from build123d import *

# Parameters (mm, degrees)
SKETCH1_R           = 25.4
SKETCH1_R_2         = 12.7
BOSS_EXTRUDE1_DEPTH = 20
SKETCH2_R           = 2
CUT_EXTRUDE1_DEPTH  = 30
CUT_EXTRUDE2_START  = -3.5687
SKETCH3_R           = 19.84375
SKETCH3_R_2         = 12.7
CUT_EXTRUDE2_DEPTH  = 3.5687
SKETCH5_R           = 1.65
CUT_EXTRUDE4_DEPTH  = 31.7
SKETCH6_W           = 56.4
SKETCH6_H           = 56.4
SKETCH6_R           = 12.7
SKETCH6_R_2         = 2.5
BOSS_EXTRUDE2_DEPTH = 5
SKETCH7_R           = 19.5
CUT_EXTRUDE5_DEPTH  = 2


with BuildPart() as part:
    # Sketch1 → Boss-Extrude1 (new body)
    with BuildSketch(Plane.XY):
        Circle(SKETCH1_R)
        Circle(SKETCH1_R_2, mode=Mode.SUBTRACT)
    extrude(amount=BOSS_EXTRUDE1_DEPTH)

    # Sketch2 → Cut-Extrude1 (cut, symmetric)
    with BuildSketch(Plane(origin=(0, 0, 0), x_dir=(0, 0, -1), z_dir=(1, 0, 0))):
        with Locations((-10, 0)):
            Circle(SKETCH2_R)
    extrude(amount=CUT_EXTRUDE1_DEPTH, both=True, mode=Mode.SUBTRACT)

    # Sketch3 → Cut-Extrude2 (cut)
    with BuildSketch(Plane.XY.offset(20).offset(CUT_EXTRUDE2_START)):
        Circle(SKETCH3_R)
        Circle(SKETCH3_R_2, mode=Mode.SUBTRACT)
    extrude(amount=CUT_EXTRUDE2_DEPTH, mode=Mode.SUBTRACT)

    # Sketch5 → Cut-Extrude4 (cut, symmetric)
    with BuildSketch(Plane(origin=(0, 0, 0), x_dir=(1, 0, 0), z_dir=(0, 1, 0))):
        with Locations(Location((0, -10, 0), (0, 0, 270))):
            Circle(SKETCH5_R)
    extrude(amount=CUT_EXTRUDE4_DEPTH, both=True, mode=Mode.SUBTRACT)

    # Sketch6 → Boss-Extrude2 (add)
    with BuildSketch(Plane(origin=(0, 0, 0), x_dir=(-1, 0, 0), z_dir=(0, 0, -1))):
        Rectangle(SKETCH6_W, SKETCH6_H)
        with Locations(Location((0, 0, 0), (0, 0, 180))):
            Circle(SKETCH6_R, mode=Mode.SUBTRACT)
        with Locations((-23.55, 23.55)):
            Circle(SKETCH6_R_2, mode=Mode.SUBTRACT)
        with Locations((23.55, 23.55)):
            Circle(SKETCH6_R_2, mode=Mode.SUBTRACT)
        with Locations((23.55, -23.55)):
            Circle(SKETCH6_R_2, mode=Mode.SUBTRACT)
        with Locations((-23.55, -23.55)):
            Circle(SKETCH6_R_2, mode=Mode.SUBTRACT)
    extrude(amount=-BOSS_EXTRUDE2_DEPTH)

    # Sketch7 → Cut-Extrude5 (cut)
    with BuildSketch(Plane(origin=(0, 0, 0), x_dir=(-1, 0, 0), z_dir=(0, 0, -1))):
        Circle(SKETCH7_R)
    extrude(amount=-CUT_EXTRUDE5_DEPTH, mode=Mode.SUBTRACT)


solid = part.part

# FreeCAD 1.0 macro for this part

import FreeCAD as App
import Part
import Sketcher
Q = App.Units.Quantity


def add_polygon(sketch, points):
    """Adds a closed chain of lines whose ends are joined by coincident constraints."""
    first, n = sketch.GeometryCount, len(points)
    for a, b in zip(points, points[1:] + points[:1]):
        sketch.addGeometry(Part.LineSegment(App.Vector(*a, 0), App.Vector(*b, 0)), False)
    for i in range(n):
        sketch.addConstraint(Sketcher.Constraint("Coincident", first + i, 2, first + (i + 1) % n, 1))

doc = App.newDocument("Part")
body = doc.addObject("PartDesign::Body", "Body")

sketch1 = doc.addObject("Sketcher::SketchObject", "Sketch")
body.addObject(sketch1)
sketch1.AttachmentSupport = (doc.XY_Plane, [""])
sketch1.MapMode = "FlatFace"
sketch1.addGeometry([
    Part.Circle(App.Vector(0, 0, 0), App.Vector(0, 0, 1), 25.4),
    Part.Circle(App.Vector(0, 0, 0), App.Vector(0, 0, 1), 12.7),
], False)
sketch1.addConstraint([
    Sketcher.Constraint("Coincident", 0, 3, -1, 1),
    Sketcher.Constraint("Coincident", 1, 3, -1, 1),
    Sketcher.Constraint("Diameter", 0, Q("50.8 mm")),
    Sketcher.Constraint("Diameter", 1, Q("25.4 mm")),
])
pad1 = doc.addObject("PartDesign::Pad", "Pad")
body.addObject(pad1)
pad1.Profile = sketch1
pad1.Length = 20

sketch2 = doc.addObject("Sketcher::SketchObject", "Sketch001")
body.addObject(sketch2)
sketch2.AttachmentSupport = (doc.YZ_Plane, [""])
sketch2.MapMode = "FlatFace"
sketch2.addGeometry(Part.Circle(App.Vector(0, 10, 0), App.Vector(0, 0, 1), 2), False)
sketch2.addConstraint([
    Sketcher.Constraint("PointOnObject", 0, 3, -2),
    Sketcher.Constraint("Diameter", 0, Q("4 mm")),
    Sketcher.Constraint("DistanceY", -1, 1, 0, 3, Q("10 mm")),
])
pocket1 = doc.addObject("PartDesign::Pocket", "Pocket")
body.addObject(pocket1)
pocket1.Profile = sketch2
pocket1.Length = 60
pocket1.Midplane = True

sketch3 = doc.addObject("Sketcher::SketchObject", "Sketch002")
body.addObject(sketch3)
sketch3.AttachmentSupport = (doc.XY_Plane, [""])
sketch3.MapMode = "FlatFace"
sketch3.AttachmentOffset = App.Placement(App.Vector(0, 0, 16.4313), App.Rotation())
sketch3.addGeometry([
    Part.Circle(App.Vector(0, 0, 0), App.Vector(0, 0, 1), 19.84375),
    Part.Circle(App.Vector(0, 0, 0), App.Vector(0, 0, 1), 12.7),
], False)
sketch3.addConstraint([
    Sketcher.Constraint("Coincident", 0, 3, -1, 1),
    Sketcher.Constraint("Coincident", 1, 3, -1, 1),
    Sketcher.Constraint("Diameter", 1, Q("25.4 mm")),
    Sketcher.Constraint("Diameter", 0, Q("39.6875 mm")),
])
pocket2 = doc.addObject("PartDesign::Pocket", "Pocket001")
body.addObject(pocket2)
pocket2.Profile = sketch3
pocket2.Length = 3.5687
pocket2.Reversed = True

sketch4 = doc.addObject("Sketcher::SketchObject", "Sketch003")
body.addObject(sketch4)
sketch4.AttachmentSupport = (doc.XZ_Plane, [""])
sketch4.MapMode = "FlatFace"
sketch4.addGeometry(Part.Circle(App.Vector(0, 10, 0), App.Vector(0, 0, 1), 1.65), False)
sketch4.addConstraint([
    Sketcher.Constraint("PointOnObject", 0, 3, -2),
    Sketcher.Constraint("Diameter", 0, Q("3.3 mm")),
    Sketcher.Constraint("DistanceY", -1, 1, 0, 3, Q("10 mm")),
])
pocket3 = doc.addObject("PartDesign::Pocket", "Pocket002")
body.addObject(pocket3)
pocket3.Profile = sketch4
pocket3.Length = 63.4
pocket3.Midplane = True

sketch5 = doc.addObject("Sketcher::SketchObject", "Sketch004")
body.addObject(sketch5)
sketch5.AttachmentSupport = (doc.XY_Plane, [""])
sketch5.MapMode = "FlatFace"
add_polygon(sketch5, [(28.2, 28.2), (28.2, -28.2), (-28.2, -28.2), (-28.2, 28.2)])
sketch5.addGeometry(Part.Circle(App.Vector(23.55, -23.55, 0), App.Vector(0, 0, 1), 2.5), False)
sketch5.addGeometry(Part.Circle(App.Vector(-23.55, -23.55, 0), App.Vector(0, 0, 1), 2.5), False)
sketch5.addGeometry(Part.Circle(App.Vector(23.55, 23.55, 0), App.Vector(0, 0, 1), 2.5), False)
sketch5.addGeometry(Part.Circle(App.Vector(0, 0, 0), App.Vector(0, 0, 1), 12.7), False)
sketch5.addGeometry(Part.Circle(App.Vector(-23.55, 23.55, 0), App.Vector(0, 0, 1), 2.5), False)
sketch5.addConstraint([
    Sketcher.Constraint("Vertical", 0),
    Sketcher.Constraint("Horizontal", 1),
    Sketcher.Constraint("Vertical", 2),
    Sketcher.Constraint("Horizontal", 3),
    Sketcher.Constraint("Coincident", 7, 3, -1, 1),
    Sketcher.Constraint("Equal", 4, 5),
    Sketcher.Constraint("Equal", 5, 6),
    Sketcher.Constraint("Equal", 6, 8),
    Sketcher.Constraint("Symmetric", 5, 3, 6, 3, -1, 1),
    Sketcher.Constraint("Symmetric", 4, 3, 8, 3, -1, 1),
    Sketcher.Constraint("Symmetric", 0, 2, 2, 2, -1, 1),
    Sketcher.Constraint("Symmetric", 4, 3, 5, 3, -2),
    Sketcher.Constraint("Equal", 3, 0),
    Sketcher.Constraint("Diameter", 4, Q("5 mm")),
    Sketcher.Constraint("Diameter", 7, Q("25.4 mm")),
    Sketcher.Constraint("DistanceX", 1, 2, 1, 1, Q("56.4 mm")),
    Sketcher.Constraint("DistanceX", 5, 3, 4, 3, Q("47.1 mm")),
    Sketcher.Constraint("DistanceY", 4, 3, 6, 3, Q("47.1 mm")),
])
pad2 = doc.addObject("PartDesign::Pad", "Pad001")
body.addObject(pad2)
pad2.Profile = sketch5
pad2.Length = 5

sketch6 = doc.addObject("Sketcher::SketchObject", "Sketch005")
body.addObject(sketch6)
sketch6.AttachmentSupport = (doc.XY_Plane, [""])
sketch6.MapMode = "FlatFace"
sketch6.addGeometry(Part.Circle(App.Vector(0, 0, 0), App.Vector(0, 0, 1), 19.5), False)
sketch6.addConstraint([
    Sketcher.Constraint("Coincident", 0, 3, -1, 1),
    Sketcher.Constraint("Diameter", 0, Q("39 mm")),
])
pocket4 = doc.addObject("PartDesign::Pocket", "Pocket003")
body.addObject(pocket4)
pocket4.Profile = sketch6
pocket4.Length = 2
pocket4.Reversed = True

doc.recompute()
